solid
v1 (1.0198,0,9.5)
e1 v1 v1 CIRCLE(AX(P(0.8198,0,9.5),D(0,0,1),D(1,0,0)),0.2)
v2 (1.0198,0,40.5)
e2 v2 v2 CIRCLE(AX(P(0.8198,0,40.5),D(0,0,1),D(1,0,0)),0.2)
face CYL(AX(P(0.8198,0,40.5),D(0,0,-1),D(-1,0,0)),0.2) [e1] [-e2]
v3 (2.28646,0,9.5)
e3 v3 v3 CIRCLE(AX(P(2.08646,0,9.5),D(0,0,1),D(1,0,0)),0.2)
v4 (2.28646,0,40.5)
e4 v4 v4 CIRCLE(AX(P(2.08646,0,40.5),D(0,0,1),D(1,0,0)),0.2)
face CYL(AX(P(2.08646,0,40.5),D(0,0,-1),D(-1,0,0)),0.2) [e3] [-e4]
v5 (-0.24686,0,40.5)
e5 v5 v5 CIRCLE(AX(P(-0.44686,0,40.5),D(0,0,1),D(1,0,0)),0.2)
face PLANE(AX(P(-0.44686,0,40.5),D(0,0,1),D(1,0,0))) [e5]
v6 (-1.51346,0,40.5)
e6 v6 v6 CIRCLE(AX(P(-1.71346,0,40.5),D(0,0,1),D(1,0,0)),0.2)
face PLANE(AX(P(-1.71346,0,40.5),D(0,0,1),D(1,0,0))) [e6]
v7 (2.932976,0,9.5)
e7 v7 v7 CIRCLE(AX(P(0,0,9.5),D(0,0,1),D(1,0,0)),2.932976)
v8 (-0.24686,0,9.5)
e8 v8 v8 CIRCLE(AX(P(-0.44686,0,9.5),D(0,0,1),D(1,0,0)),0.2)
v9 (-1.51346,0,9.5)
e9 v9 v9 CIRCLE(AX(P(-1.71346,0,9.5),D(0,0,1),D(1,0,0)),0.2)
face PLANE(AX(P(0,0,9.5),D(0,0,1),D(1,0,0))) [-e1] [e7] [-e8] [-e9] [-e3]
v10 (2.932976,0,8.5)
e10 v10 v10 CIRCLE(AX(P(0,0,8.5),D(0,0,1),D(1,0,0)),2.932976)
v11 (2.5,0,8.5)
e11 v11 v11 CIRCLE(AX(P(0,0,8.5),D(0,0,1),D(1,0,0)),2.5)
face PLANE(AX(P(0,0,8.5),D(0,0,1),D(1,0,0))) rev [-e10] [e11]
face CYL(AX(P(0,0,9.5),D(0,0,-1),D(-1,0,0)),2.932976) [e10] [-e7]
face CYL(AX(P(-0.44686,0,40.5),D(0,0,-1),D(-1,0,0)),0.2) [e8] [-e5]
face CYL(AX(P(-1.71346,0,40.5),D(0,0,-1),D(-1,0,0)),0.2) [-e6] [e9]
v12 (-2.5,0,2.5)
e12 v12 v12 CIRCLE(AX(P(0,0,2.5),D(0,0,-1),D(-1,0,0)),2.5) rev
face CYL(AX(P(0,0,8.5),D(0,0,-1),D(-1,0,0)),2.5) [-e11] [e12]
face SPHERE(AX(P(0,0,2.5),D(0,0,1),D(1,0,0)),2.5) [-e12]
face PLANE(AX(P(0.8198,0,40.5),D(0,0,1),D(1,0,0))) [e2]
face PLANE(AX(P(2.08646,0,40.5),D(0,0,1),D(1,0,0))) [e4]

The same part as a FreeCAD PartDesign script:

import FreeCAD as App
import Part
import Sketcher


def edges_at(feature, points):
    """Names of the edges that pass closest to the given points."""
    edges = feature.Shape.Edges
    near = lambda p: min(range(len(edges)), key=lambda i: edges[i].distToShape(Part.Vertex(*p))[0])
    return sorted({f"Edge{near(p) + 1}" for p in points})

doc = App.newDocument("Part")
params = doc.addObject("Spreadsheet::Sheet", "Params")
for row, (alias, value) in enumerate([
    ("sketch1_diameter", "5 mm"),
    ("pad1_length", "8.5 mm"),
    ("pad2_length", "1 mm"),
    ("fillet_radius", "2.5 mm"),
    ("sketch3_diameter", "0.4 mm"),
    ("pad3_length", "31 mm"),
], start=1):
    params.set(f"A{row}", alias)
    params.set(f"B{row}", "=" + value)
    params.setAlias(f"B{row}", alias)

body = doc.addObject("PartDesign::Body", "Body")

# Sketch on XY plane
sketch1 = body.newObject("Sketcher::SketchObject", "Sketch")
sketch1.AttachmentSupport = (doc.getObject("XY_Plane"), [""])
sketch1.MapMode = "FlatFace"
sketch1.addGeometry(Part.Circle(App.Vector(0, 0, 0), App.Vector(0, 0, 1), 2.5), False)
sketch1.addConstraint([
    Sketcher.Constraint("Coincident", 0, 3, -1, 1),
    Sketcher.Constraint("Diameter", 0, 5.0),
])
sketch1.setExpression("Constraints[1]", "Params.sketch1_diameter")
pad1 = body.newObject("PartDesign::Pad", "Pad")
pad1.Profile = sketch1
pad1.setExpression("Length", "Params.pad1_length")

# Sketch on XY plane
sketch2 = body.newObject("Sketcher::SketchObject", "Sketch001")
sketch2.AttachmentSupport = (doc.getObject("XY_Plane"), [""])
sketch2.MapMode = "FlatFace"
sketch2.AttachmentOffset = App.Placement(App.Vector(0, 0, 8.5), App.Rotation())
sketch2.addGeometry(Part.Circle(App.Vector(0, 0, 0), App.Vector(0, 0, 1), 2.9), False)
sketch2.addConstraint([
    Sketcher.Constraint("Coincident", 0, 3, -1, 1),
    Sketcher.Constraint("Diameter", 0, 5.865952),
])
pad2 = body.newObject("PartDesign::Pad", "Pad001")
pad2.Profile = sketch2
pad2.setExpression("Length", "Params.pad2_length")
doc.recompute()

fillet = body.newObject("PartDesign::Fillet", "Fillet")
fillet.Base = (pad2, edges_at(pad2, [(-2.5, 0, 0)]))
fillet.setExpression("Radius", "Params.fillet_radius")

# Sketch on XY plane
sketch3 = body.newObject("Sketcher::SketchObject", "Sketch002")
sketch3.AttachmentSupport = (doc.getObject("XY_Plane"), [""])
sketch3.MapMode = "FlatFace"
sketch3.AttachmentOffset = App.Placement(App.Vector(0, 0, 9.5), App.Rotation())
sketch3.addGeometry([
    Part.Circle(App.Vector(-1.71, 0, 0), App.Vector(0, 0, 1), 0.2),
    Part.Circle(App.Vector(-0.45, 0, 0), App.Vector(0, 0, 1), 0.2),
    Part.Circle(App.Vector(0.82, 0, 0), App.Vector(0, 0, 1), 0.2),
    Part.Circle(App.Vector(2.09, 0, 0), App.Vector(0, 0, 1), 0.2),
], False)
sketch3.addConstraint([
    Sketcher.Constraint("Equal", 0, 1),
    Sketcher.Constraint("Equal", 1, 2),
    Sketcher.Constraint("Equal", 2, 3),
    Sketcher.Constraint("PointOnObject", 0, 3, -1),
    Sketcher.Constraint("PointOnObject", 1, 3, -1),
    Sketcher.Constraint("PointOnObject", 2, 3, -1),
    Sketcher.Constraint("PointOnObject", 3, 3, -1),
    Sketcher.Constraint("Diameter", 0, 0.4),
    Sketcher.Constraint("DistanceX", -1, 1, 2, 3, 0.8198),
    Sketcher.Constraint("DistanceX", 0, 3, 1, 3, 1.2666),
    Sketcher.Constraint("DistanceX", 0, 3, -1, 1, 1.71346),
    Sketcher.Constraint("DistanceX", -1, 1, 3, 3, 2.08646),
])
sketch3.setExpression("Constraints[7]", "Params.sketch3_diameter")
pad3 = body.newObject("PartDesign::Pad", "Pad002")
pad3.Profile = sketch3
pad3.setExpression("Length", "Params.pad3_length")

doc.recompute()
